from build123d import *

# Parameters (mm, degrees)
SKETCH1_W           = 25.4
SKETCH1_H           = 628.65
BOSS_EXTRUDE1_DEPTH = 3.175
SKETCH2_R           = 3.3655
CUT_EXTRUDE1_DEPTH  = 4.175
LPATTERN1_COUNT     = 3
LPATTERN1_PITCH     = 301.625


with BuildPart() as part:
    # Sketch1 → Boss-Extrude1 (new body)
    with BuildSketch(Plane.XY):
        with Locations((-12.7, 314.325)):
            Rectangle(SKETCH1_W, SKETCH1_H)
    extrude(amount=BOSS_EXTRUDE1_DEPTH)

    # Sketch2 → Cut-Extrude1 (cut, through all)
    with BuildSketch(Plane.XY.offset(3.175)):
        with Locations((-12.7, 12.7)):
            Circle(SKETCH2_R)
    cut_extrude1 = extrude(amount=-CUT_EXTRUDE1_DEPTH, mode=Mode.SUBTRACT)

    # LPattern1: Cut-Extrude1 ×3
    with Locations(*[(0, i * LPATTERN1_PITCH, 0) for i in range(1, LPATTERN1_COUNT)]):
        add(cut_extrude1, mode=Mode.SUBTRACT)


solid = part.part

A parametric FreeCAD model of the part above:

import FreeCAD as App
import Part
import Sketcher

V = App.Vector
Q = App.Units.Quantity


def add_polygon(sketch, points):
    """Adds a closed chain of lines whose ends are joined by coincident constraints."""
    first, n = sketch.GeometryCount, len(points)
    for a, b in zip(points, points[1:] + points[:1]):
        sketch.addGeometry(Part.LineSegment(App.Vector(*a, 0), App.Vector(*b, 0)), False)
    for i in range(n):
        sketch.addConstraint(Sketcher.Constraint("Coincident", first + i, 2, first + (i + 1) % n, 1))

doc = App.newDocument("Part")
body = doc.addObject("PartDesign::Body", "Body")

# Sketch on XY plane
sketch1 = body.newObject("Sketcher::SketchObject", "Sketch")
sketch1.AttachmentSupport = (doc.getObject("XY_Plane"), [""])
sketch1.MapMode = "FlatFace"
add_polygon(sketch1, [(-25.4, 628.65), (-25.4, 0), (0, 0), (0, 628.65)])  # lines 0-3
sketch1.addConstraint([
    Sketcher.Constraint("Vertical", 0),
    Sketcher.Constraint("Horizontal", 1),
    Sketcher.Constraint("Vertical", 2),
    Sketcher.Constraint("Horizontal", 3),
    Sketcher.Constraint("Coincident", 1, 2, -1, 1),
    Sketcher.Constraint("DistanceX", 1, 1, 1, 2, Q("1 in")),
    Sketcher.Constraint("DistanceY", 0, 2, 0, 1, Q("24.75 in")),
])
pad1 = body.newObject("PartDesign::Pad", "Pad")
pad1.Profile = sketch1
pad1.Length = Q("0.125 in")

# Sketch on XY plane
sketch2 = body.newObject("Sketcher::SketchObject", "Sketch001")
sketch2.AttachmentSupport = (doc.getObject("XY_Plane"), [""])
sketch2.MapMode = "FlatFace"
sketch2.AttachmentOffset = App.Placement(V(0, 0, 0.125 * 25.4), App.Rotation())
sketch2.addGeometry(Part.Circle(V(-12.7, 12.7, 0), V(0, 0, 1), 3.3655), False)
sketch2.addConstraint([
    Sketcher.Constraint("Diameter", 0, Q("0.265 in")),
    Sketcher.Constraint("DistanceX", 0, 3, -1, 1, Q("0.5 in")),
    Sketcher.Constraint("DistanceY", -1, 1, 0, 3, Q("0.5 in")),
])
pocket1 = body.newObject("PartDesign::Pocket", "Pocket")
pocket1.Profile = sketch2
pocket1.Type = "ThroughAll"
doc.recompute()

linearpattern = body.newObject("PartDesign::LinearPattern", "LinearPattern")
linearpattern.Originals = [pocket1]
linearpattern.Direction = (doc.getObject("Y_Axis"), [""])
linearpattern.Mode = "offset"
linearpattern.Offset = Q("11.875 in")
linearpattern.Occurrences = 3
body.Tip = linearpattern

doc.recompute()
